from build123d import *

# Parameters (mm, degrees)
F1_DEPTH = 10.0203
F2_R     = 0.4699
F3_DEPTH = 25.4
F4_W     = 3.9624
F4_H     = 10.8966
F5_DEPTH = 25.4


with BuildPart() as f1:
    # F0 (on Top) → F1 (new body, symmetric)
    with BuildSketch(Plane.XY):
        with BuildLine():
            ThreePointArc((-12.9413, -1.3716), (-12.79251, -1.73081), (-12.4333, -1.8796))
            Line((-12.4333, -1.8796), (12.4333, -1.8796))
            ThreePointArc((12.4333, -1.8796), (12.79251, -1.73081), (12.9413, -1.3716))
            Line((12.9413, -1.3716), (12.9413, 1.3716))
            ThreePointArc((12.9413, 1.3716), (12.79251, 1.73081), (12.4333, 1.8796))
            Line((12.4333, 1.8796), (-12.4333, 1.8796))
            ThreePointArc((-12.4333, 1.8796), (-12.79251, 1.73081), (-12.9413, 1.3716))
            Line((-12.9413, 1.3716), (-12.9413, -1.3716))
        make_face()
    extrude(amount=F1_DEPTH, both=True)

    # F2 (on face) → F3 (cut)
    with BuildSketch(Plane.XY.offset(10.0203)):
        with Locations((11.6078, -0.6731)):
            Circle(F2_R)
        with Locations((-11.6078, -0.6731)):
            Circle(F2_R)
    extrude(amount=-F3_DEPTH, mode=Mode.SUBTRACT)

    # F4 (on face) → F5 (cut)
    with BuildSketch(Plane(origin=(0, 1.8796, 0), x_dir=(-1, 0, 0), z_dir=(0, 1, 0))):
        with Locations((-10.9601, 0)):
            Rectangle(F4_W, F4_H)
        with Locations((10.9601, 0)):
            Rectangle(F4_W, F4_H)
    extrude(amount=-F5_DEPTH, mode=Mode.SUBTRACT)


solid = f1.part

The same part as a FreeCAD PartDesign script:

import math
import FreeCAD as App
import Part
import Sketcher

V = App.Vector
Q = App.Units.Quantity

doc = App.newDocument("Part")
params = doc.addObject("Spreadsheet::Sheet", "Params")
for row, (alias, value) in enumerate([
    ("sketch1_radius", "0.02 in"),
    ("sketch1_width", "0.979 in"),
    ("sketch1_height", "0.108 in"),
    ("pad1_length", "0.789 in"),
    ("sketch2_diameter", "0.037 in"),
    ("pocket1_length", "1 in"),
    ("sketch3_width", "0.156 in"),
    ("sketch3_height", "0.429 in"),
    ("pocket2_length", "1 in"),
], start=1):
    params.set(f"A{row}", alias)
    params.set(f"B{row}", "=" + value)
    params.setAlias(f"B{row}", alias)

body = doc.addObject("PartDesign::Body", "Body")

# Sketch on XY plane
sketch1 = body.newObject("Sketcher::SketchObject", "Sketch")
sketch1.AttachmentSupport = (doc.getObject("XY_Plane"), [""])
sketch1.MapMode = "FlatFace"
sketch1.addGeometry([
    Part.ArcOfCircle(Part.Circle(V(-12.433299, -1.371599, 0), V(0, 0, 1), 0.508001), math.radians(-179.999906), math.radians(-90.000094)),  # 0
    Part.LineSegment(V(-12.4333, -1.8796, 0), V(12.4333, -1.8796, 0)),  # 1
    Part.ArcOfCircle(Part.Circle(V(12.433299, -1.371599, 0), V(0, 0, 1), 0.508001), math.radians(-89.999906), math.radians(-0.000094)),  # 2
    Part.LineSegment(V(12.9413, -1.3716, 0), V(12.9413, 1.3716, 0)),  # 3
    Part.ArcOfCircle(Part.Circle(V(12.433299, 1.371599, 0), V(0, 0, 1), 0.508001), math.radians(0.000094), math.radians(89.999906)),  # 4
    Part.LineSegment(V(12.4333, 1.8796, 0), V(-12.4333, 1.8796, 0)),  # 5
    Part.ArcOfCircle(Part.Circle(V(-12.433299, 1.371599, 0), V(0, 0, 1), 0.508001), math.radians(90.000094), math.radians(179.999906)),  # 6
    Part.LineSegment(V(-12.9413, 1.3716, 0), V(-12.9413, -1.3716, 0)),  # 7
], False)
sketch1.addConstraint([
    Sketcher.Constraint("Tangent", 0, 2, 1, 1),
    Sketcher.Constraint("Tangent", 1, 2, 2, 1),
    Sketcher.Constraint("Tangent", 2, 2, 3, 1),
    Sketcher.Constraint("Tangent", 3, 2, 4, 1),
    Sketcher.Constraint("Tangent", 4, 2, 5, 1),
    Sketcher.Constraint("Tangent", 5, 2, 6, 1),
    Sketcher.Constraint("Tangent", 6, 2, 7, 1),
    Sketcher.Constraint("Tangent", 7, 2, 0, 1),
    Sketcher.Constraint("Horizontal", 1),
    Sketcher.Constraint("Vertical", 3),
    Sketcher.Constraint("Horizontal", 5),
    Sketcher.Constraint("Vertical", 7),
    Sketcher.Constraint("Equal", 0, 2),
    Sketcher.Constraint("Equal", 2, 4),
    Sketcher.Constraint("Equal", 4, 6),
    Sketcher.Constraint("Symmetric", 0, 3, 4, 3, -1, 1),
    Sketcher.Constraint("Radius", 0, Q("0.02 in")),
    Sketcher.Constraint("DistanceX", 1, 1, 1, 2, Q("0.979 in")),
    Sketcher.Constraint("DistanceY", 3, 1, 3, 2, Q("0.108 in")),
])
sketch1.setExpression("Constraints[16]", "Params.sketch1_radius")
sketch1.setExpression("Constraints[17]", "Params.sketch1_width")
sketch1.setExpression("Constraints[18]", "Params.sketch1_height")
pad1 = body.newObject("PartDesign::Pad", "Pad")
pad1.Profile = sketch1
pad1.setExpression("Length", "Params.pad1_length")
pad1.Midplane = True

# Sketch on XY plane
sketch2 = body.newObject("Sketcher::SketchObject", "Sketch001")
sketch2.AttachmentSupport = (doc.getObject("XY_Plane"), [""])
sketch2.MapMode = "FlatFace"
sketch2.AttachmentOffset = App.Placement(V(0, 0, 0.3945 * 25.4), App.Rotation())
sketch2.addGeometry([
    Part.Circle(V(11.6078, -0.6731, 0), V(0, 0, 1), 0.4699),
    Part.Circle(V(-11.6078, -0.6731, 0), V(0, 0, 1), 0.4699),
], False)
sketch2.addConstraint([
    Sketcher.Constraint("Equal", 0, 1),
    Sketcher.Constraint("Symmetric", 0, 3, 1, 3, -2),
    Sketcher.Constraint("Diameter", 0, Q("0.037 in")),
    Sketcher.Constraint("DistanceX", -1, 1, 0, 3, Q("0.457 in")),
    Sketcher.Constraint("DistanceY", 0, 3, -1, 1, Q("0.0265 in")),
])
sketch2.setExpression("Constraints[2]", "Params.sketch2_diameter")
pocket1 = body.newObject("PartDesign::Pocket", "Pocket")
pocket1.Profile = sketch2
pocket1.setExpression("Length", "Params.pocket1_length")

# Sketch on XZ plane
sketch3 = body.newObject("Sketcher::SketchObject", "Sketch002")
sketch3.AttachmentSupport = (doc.getObject("XZ_Plane"), [""])
sketch3.MapMode = "FlatFace"
sketch3.AttachmentOffset = App.Placement(V(0, 0, -0.074 * 25.4), App.Rotation())
sketch3.addGeometry([
    Part.LineSegment(V(12.9413, 5.4483, 0), V(12.9413, -5.4483, 0)),  # 0
    Part.LineSegment(V(12.9413, -5.4483, 0), V(8.9789, -5.4483, 0)),  # 1
    Part.LineSegment(V(8.9789, -5.4483, 0), V(8.9789, 5.4483, 0)),  # 2
    Part.LineSegment(V(8.9789, 5.4483, 0), V(12.9413, 5.4483, 0)),  # 3
    Part.LineSegment(V(-8.9789, 5.4483, 0), V(-8.9789, -5.4483, 0)),  # 4
    Part.LineSegment(V(-8.9789, -5.4483, 0), V(-12.9413, -5.4483, 0)),  # 5
    Part.LineSegment(V(-12.9413, -5.4483, 0), V(-12.9413, 5.4483, 0)),  # 6
    Part.LineSegment(V(-12.9413, 5.4483, 0), V(-8.9789, 5.4483, 0)),  # 7
], False)
sketch3.addConstraint([
    Sketcher.Constraint("Coincident", 0, 2, 1, 1),
    Sketcher.Constraint("Coincident", 1, 2, 2, 1),
    Sketcher.Constraint("Coincident", 2, 2, 3, 1),
    Sketcher.Constraint("Coincident", 3, 2, 0, 1),
    Sketcher.Constraint("Coincident", 4, 2, 5, 1),
    Sketcher.Constraint("Coincident", 5, 2, 6, 1),
    Sketcher.Constraint("Coincident", 6, 2, 7, 1),
    Sketcher.Constraint("Coincident", 7, 2, 4, 1),
    Sketcher.Constraint("Vertical", 0),
    Sketcher.Constraint("Horizontal", 1),
    Sketcher.Constraint("Vertical", 2),
    Sketcher.Constraint("Horizontal", 3),
    Sketcher.Constraint("Vertical", 4),
    Sketcher.Constraint("Horizontal", 5),
    Sketcher.Constraint("Vertical", 6),
    Sketcher.Constraint("Horizontal", 7),
    Sketcher.Constraint("Symmetric", 2, 2, 4, 2, -1, 1),
    Sketcher.Constraint("Symmetric", 0, 2, 6, 2, -1, 1),
    Sketcher.Constraint("Horizontal", 1, 2, 4, 2),
    Sketcher.Constraint("DistanceX", 1, 2, 1, 1, Q("0.156 in")),
    Sketcher.Constraint("DistanceY", 0, 2, 0, 1, Q("0.429 in")),
    Sketcher.Constraint("DistanceX", 4, 2, 1, 2, Q("0.707 in")),
])
sketch3.setExpression("Constraints[19]", "Params.sketch3_width")
sketch3.setExpression("Constraints[20]", "Params.sketch3_height")
pocket2 = body.newObject("PartDesign::Pocket", "Pocket001")
pocket2.Profile = sketch3
pocket2.setExpression("Length", "Params.pocket2_length")
pocket2.Reversed = True

doc.recompute()
